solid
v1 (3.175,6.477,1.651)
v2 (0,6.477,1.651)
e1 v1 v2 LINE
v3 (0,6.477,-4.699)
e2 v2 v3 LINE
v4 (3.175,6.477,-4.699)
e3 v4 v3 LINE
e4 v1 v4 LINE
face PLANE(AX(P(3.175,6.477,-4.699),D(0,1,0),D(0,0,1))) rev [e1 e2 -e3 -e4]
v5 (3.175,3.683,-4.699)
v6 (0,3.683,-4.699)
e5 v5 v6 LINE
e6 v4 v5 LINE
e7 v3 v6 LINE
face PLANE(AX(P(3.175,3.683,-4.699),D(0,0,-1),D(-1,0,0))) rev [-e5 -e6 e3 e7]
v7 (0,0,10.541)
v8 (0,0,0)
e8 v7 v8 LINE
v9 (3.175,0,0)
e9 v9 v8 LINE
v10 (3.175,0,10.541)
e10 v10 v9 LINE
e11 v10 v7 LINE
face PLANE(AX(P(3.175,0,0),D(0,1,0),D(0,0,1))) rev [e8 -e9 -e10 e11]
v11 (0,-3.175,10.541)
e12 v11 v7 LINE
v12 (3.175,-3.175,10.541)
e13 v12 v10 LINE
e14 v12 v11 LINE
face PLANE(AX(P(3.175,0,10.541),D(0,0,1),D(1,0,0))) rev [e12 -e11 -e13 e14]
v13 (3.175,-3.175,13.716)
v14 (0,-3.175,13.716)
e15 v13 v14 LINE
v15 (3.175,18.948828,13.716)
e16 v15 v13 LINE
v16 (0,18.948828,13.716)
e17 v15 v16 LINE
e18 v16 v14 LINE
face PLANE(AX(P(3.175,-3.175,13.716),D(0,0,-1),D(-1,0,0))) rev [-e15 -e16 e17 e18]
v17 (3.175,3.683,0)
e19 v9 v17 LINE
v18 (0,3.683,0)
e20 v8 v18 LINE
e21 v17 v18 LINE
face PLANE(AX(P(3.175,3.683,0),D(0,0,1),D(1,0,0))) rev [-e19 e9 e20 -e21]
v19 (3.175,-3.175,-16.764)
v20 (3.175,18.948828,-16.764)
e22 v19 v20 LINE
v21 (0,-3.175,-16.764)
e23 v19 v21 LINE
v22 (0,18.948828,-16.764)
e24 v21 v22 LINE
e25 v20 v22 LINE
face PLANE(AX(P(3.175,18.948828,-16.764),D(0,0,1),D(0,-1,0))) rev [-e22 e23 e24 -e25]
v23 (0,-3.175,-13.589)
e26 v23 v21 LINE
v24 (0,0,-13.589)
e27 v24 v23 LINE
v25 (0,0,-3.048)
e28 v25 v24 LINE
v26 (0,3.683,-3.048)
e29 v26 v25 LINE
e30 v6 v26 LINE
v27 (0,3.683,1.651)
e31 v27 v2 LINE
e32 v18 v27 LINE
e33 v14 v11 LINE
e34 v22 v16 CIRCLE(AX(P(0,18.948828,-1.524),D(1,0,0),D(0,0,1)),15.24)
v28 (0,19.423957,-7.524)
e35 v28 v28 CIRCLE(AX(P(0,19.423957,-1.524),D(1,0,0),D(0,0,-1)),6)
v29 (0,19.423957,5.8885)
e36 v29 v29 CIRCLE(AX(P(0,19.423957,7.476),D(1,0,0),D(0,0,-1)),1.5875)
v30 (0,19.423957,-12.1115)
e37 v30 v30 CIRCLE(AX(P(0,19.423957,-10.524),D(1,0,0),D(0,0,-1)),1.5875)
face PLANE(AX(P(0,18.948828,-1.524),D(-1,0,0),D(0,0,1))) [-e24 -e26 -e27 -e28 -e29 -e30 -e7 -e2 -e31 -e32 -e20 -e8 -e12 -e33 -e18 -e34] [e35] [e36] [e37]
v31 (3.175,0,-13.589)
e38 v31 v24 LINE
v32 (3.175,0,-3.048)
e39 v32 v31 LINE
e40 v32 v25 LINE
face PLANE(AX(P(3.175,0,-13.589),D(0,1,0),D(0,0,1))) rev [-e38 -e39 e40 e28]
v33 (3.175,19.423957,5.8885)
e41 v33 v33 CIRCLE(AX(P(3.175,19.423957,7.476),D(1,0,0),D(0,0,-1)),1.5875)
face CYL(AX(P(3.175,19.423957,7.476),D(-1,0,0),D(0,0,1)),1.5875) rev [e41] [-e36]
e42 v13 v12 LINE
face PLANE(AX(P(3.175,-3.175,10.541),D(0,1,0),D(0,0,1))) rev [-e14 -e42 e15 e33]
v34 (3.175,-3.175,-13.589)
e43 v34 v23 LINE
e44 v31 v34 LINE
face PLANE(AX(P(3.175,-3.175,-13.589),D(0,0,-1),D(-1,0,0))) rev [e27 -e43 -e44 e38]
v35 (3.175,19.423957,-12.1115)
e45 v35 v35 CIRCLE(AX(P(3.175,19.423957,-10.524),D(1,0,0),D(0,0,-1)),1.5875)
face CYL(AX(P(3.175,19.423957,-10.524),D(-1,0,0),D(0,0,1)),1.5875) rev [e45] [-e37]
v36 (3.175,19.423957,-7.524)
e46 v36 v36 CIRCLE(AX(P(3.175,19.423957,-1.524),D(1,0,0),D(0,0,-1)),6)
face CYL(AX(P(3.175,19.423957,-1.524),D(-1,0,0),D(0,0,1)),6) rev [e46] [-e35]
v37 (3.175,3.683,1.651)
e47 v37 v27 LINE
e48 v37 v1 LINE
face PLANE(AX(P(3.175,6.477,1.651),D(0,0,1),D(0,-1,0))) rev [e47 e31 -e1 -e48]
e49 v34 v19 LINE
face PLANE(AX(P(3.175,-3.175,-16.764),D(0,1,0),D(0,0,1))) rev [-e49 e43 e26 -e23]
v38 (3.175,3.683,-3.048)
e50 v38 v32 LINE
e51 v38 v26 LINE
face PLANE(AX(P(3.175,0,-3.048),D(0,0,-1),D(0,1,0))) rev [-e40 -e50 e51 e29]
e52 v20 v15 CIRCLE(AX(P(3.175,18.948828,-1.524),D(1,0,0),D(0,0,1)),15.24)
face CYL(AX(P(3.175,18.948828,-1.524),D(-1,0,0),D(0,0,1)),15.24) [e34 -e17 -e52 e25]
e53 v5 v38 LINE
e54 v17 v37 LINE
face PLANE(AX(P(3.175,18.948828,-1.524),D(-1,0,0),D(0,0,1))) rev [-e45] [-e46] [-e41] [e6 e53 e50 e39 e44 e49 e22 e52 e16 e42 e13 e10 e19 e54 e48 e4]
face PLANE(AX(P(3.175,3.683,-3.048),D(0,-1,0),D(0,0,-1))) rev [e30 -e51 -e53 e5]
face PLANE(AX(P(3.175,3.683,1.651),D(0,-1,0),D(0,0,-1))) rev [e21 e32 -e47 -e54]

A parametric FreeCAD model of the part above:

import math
import FreeCAD as App
import Part
import Sketcher
from FreeCAD import Vector
Q = App.Units.Quantity

doc = App.newDocument("Part")
body = doc.addObject("PartDesign::Body", "Body")

sketch1 = doc.addObject("Sketcher::SketchObject", "Sketch")
body.addObject(sketch1)
sketch1.AttachmentSupport = (doc.YZ_Plane, [""])
sketch1.MapMode = "FlatFace"
sketch1.addGeometry(Part.LineSegment(Vector(18.9, 13.7, 0), Vector(-3.2, 13.7, 0)), False)
sketch1.addGeometry(Part.LineSegment(Vector(-3.2, 13.7, 0), Vector(-3.2, 10.5, 0)), False)
sketch1.addGeometry(Part.LineSegment(Vector(-3.2, 10.5, 0), Vector(0, 10.5, 0)), False)
sketch1.addGeometry(Part.LineSegment(Vector(0, 10.5, 0), Vector(0, 0, 0)), False)
sketch1.addGeometry(Part.LineSegment(Vector(0, 0, 0), Vector(3.7, 0, 0)), False)
sketch1.addGeometry(Part.LineSegment(Vector(3.7, 0, 0), Vector(3.7, 1.7, 0)), False)
sketch1.addGeometry(Part.LineSegment(Vector(3.7, 1.7, 0), Vector(6.5, 1.7, 0)), False)
sketch1.addGeometry(Part.LineSegment(Vector(6.5, 1.7, 0), Vector(6.5, -4.7, 0)), False)
sketch1.addGeometry(Part.LineSegment(Vector(6.5, -4.7, 0), Vector(3.7, -4.7, 0)), False)
sketch1.addGeometry(Part.LineSegment(Vector(3.7, -4.7, 0), Vector(3.7, -3, 0)), False)
sketch1.addGeometry(Part.LineSegment(Vector(3.7, -3, 0), Vector(0, -3, 0)), False)
sketch1.addGeometry(Part.LineSegment(Vector(0, -3, 0), Vector(0, -13.6, 0)), False)
sketch1.addGeometry(Part.LineSegment(Vector(0, -13.6, 0), Vector(-3.2, -13.6, 0)), False)
sketch1.addGeometry(Part.LineSegment(Vector(-3.2, -13.6, 0), Vector(-3.2, -16.8, 0)), False)
sketch1.addGeometry(Part.LineSegment(Vector(-3.2, -16.8, 0), Vector(18.9, -16.8, 0)), False)
sketch1.addGeometry(Part.ArcOfCircle(Part.Circle(Vector(18.9, -1.5, 0), Vector(0, 0, 1), 15.2), math.radians(-90), math.radians(90)), False)
sketch1.addGeometry(Part.Circle(Vector(19.4, -10.5, 0), Vector(0, 0, 1), 1.6), False)
sketch1.addGeometry(Part.Circle(Vector(19.4, -1.5, 0), Vector(0, 0, 1), 6), False)
sketch1.addGeometry(Part.Circle(Vector(19.4, 7.5, 0), Vector(0, 0, 1), 1.6), False)
sketch1.addConstraint(Sketcher.Constraint("Coincident", 0, 2, 1, 1))
sketch1.addConstraint(Sketcher.Constraint("Coincident", 1, 2, 2, 1))
sketch1.addConstraint(Sketcher.Constraint("Coincident", 2, 2, 3, 1))
sketch1.addConstraint(Sketcher.Constraint("Coincident", 3, 2, 4, 1))
sketch1.addConstraint(Sketcher.Constraint("Coincident", 4, 2, 5, 1))
sketch1.addConstraint(Sketcher.Constraint("Coincident", 5, 2, 6, 1))
sketch1.addConstraint(Sketcher.Constraint("Coincident", 6, 2, 7, 1))
sketch1.addConstraint(Sketcher.Constraint("Coincident", 7, 2, 8, 1))
sketch1.addConstraint(Sketcher.Constraint("Coincident", 8, 2, 9, 1))
sketch1.addConstraint(Sketcher.Constraint("Coincident", 9, 2, 10, 1))
sketch1.addConstraint(Sketcher.Constraint("Coincident", 10, 2, 11, 1))
sketch1.addConstraint(Sketcher.Constraint("Coincident", 11, 2, 12, 1))
sketch1.addConstraint(Sketcher.Constraint("Coincident", 12, 2, 13, 1))
sketch1.addConstraint(Sketcher.Constraint("Coincident", 13, 2, 14, 1))
sketch1.addConstraint(Sketcher.Constraint("Tangent", 14, 2, 15, 1))
sketch1.addConstraint(Sketcher.Constraint("Tangent", 15, 2, 0, 1))
sketch1.addConstraint(Sketcher.Constraint("Horizontal", 0))
sketch1.addConstraint(Sketcher.Constraint("Vertical", 1))
sketch1.addConstraint(Sketcher.Constraint("Horizontal", 2))
sketch1.addConstraint(Sketcher.Constraint("Vertical", 3))
sketch1.addConstraint(Sketcher.Constraint("Horizontal", 4))
sketch1.addConstraint(Sketcher.Constraint("Vertical", 5))
sketch1.addConstraint(Sketcher.Constraint("Horizontal", 6))
sketch1.addConstraint(Sketcher.Constraint("Vertical", 7))
sketch1.addConstraint(Sketcher.Constraint("Horizontal", 8))
sketch1.addConstraint(Sketcher.Constraint("Vertical", 9))
sketch1.addConstraint(Sketcher.Constraint("Horizontal", 10))
sketch1.addConstraint(Sketcher.Constraint("Vertical", 11))
sketch1.addConstraint(Sketcher.Constraint("Horizontal", 12))
sketch1.addConstraint(Sketcher.Constraint("Vertical", 13))
sketch1.addConstraint(Sketcher.Constraint("Horizontal", 14))
sketch1.addConstraint(Sketcher.Constraint("Coincident", 3, 2, -1, 1))
sketch1.addConstraint(Sketcher.Constraint("Equal", 16, 18))
sketch1.addConstraint(Sketcher.Constraint("PointOnObject", 10, 2, -2))
sketch1.addConstraint(Sketcher.Constraint("Horizontal", 15, 3, 17, 3))
sketch1.addConstraint(Sketcher.Constraint("Vertical", 16, 3, 17, 3))
sketch1.addConstraint(Sketcher.Constraint("Vertical", 17, 3, 18, 3))
sketch1.addConstraint(Sketcher.Constraint("Vertical", 5, 2, 8, 2))
sketch1.addConstraint(Sketcher.Constraint("Vertical", 1, 2, 12, 2))
sketch1.addConstraint(Sketcher.Constraint("Equal", 12, 1))
sketch1.addConstraint(Sketcher.Constraint("Equal", 5, 9))
sketch1.addConstraint(Sketcher.Constraint("Equal", 3, 11))
sketch1.addConstraint(Sketcher.Constraint("Equal", 1, 13))
sketch1.addConstraint(Sketcher.Constraint("Radius", 15, Q("0.6 in")))
sketch1.addConstraint(Sketcher.Constraint("Diameter", 16, Q("0.125 in")))
sketch1.addConstraint(Sketcher.Constraint("DistanceX", 6, 1, 6, 2, Q("0.11 in")))
sketch1.addConstraint(Sketcher.Constraint("DistanceY", 7, 2, 7, 1, Q("0.25 in")))
sketch1.addConstraint(Sketcher.Constraint("Diameter", 17, Q("12 mm")))
sketch1.addConstraint(Sketcher.Constraint("DistanceX", 2, 1, 2, 2, Q("0.125 in")))
sketch1.addConstraint(Sketcher.Constraint("DistanceX", 4, 1, 4, 2, Q("0.145 in")))
sketch1.addConstraint(Sketcher.Constraint("DistanceY", 3, 2, 3, 1, Q("0.415 in")))
sketch1.addConstraint(Sketcher.Constraint("DistanceY", 16, 3, -1, 1, Q("10.524 mm")))
sketch1.addConstraint(Sketcher.Constraint("DistanceY", -1, 1, 18, 3, Q("7.476 mm")))
sketch1.addConstraint(Sketcher.Constraint("DistanceX", 0, 2, 0, 1, Q("22.123828 mm")))
sketch1.addConstraint(Sketcher.Constraint("DistanceX", 15, 3, 16, 3, Q("0.475129 mm")))
pad1 = doc.addObject("PartDesign::Pad", "Pad")
body.addObject(pad1)
pad1.Profile = sketch1
pad1.Length = Q("0.125 in")

doc.recompute()
